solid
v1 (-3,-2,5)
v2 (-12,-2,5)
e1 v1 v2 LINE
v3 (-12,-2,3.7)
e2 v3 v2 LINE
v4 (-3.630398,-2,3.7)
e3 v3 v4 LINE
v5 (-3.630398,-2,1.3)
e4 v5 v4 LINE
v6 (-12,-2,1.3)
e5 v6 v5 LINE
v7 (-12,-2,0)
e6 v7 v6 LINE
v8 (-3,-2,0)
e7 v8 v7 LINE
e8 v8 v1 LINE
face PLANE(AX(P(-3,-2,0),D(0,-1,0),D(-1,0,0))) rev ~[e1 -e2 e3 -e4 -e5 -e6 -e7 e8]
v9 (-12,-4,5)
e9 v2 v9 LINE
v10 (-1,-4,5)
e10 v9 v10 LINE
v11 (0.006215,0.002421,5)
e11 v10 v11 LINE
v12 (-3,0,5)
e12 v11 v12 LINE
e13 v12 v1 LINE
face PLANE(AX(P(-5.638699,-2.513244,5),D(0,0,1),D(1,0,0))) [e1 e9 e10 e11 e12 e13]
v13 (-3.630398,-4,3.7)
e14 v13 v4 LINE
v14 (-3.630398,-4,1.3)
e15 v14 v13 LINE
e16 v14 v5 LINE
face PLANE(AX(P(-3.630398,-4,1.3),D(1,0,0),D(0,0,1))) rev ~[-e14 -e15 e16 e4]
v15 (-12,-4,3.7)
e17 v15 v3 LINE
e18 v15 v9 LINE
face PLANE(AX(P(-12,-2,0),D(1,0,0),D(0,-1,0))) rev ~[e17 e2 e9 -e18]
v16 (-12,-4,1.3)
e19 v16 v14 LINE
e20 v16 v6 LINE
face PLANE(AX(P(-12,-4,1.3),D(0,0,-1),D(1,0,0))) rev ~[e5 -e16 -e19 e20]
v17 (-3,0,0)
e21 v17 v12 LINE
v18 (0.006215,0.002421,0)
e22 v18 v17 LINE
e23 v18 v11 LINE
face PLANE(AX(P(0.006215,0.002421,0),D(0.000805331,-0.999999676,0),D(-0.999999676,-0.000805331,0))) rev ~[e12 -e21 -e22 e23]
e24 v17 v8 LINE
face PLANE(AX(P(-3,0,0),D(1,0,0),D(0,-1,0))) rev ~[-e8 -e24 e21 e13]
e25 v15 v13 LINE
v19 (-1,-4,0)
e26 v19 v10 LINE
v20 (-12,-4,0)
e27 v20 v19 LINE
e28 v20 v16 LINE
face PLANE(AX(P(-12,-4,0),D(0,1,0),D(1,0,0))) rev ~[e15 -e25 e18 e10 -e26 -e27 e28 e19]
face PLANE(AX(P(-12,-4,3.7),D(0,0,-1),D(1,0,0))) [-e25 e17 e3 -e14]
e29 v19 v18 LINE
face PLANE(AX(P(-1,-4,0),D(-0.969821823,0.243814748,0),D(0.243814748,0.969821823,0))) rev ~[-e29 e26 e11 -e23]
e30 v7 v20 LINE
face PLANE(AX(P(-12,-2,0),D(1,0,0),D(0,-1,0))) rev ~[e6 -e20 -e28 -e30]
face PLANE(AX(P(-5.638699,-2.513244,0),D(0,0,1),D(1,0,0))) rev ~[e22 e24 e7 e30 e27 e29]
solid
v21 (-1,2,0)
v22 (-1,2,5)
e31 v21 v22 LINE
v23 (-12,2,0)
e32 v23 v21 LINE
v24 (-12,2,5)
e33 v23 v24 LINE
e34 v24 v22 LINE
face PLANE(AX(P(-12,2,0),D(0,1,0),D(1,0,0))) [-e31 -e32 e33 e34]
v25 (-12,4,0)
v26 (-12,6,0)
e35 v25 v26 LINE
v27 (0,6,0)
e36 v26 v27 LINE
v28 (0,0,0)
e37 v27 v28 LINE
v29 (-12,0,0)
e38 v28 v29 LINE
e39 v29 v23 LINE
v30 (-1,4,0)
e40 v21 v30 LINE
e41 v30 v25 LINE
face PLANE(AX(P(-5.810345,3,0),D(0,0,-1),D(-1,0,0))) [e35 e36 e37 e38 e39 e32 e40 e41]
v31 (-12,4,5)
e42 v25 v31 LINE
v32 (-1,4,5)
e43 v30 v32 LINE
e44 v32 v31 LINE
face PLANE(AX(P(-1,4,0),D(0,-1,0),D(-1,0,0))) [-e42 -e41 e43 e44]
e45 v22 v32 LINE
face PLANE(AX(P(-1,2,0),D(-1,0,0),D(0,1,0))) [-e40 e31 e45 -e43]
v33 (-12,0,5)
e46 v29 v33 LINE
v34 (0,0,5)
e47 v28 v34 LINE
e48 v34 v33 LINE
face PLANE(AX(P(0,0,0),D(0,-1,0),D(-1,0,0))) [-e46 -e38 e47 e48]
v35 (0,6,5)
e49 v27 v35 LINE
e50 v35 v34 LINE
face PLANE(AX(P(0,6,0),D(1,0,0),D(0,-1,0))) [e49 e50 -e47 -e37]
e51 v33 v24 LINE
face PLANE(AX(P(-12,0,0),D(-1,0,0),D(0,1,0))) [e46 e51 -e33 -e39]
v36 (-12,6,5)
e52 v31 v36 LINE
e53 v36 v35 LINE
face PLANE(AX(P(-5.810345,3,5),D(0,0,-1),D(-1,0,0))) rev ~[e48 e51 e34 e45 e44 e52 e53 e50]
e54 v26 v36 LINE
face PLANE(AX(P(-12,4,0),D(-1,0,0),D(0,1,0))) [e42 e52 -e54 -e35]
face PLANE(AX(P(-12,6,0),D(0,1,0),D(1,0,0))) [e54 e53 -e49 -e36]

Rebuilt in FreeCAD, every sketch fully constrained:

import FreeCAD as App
import Part
import Sketcher
Q = App.Units.Quantity


def add_polygon(sketch, points):
    """Adds a closed chain of lines whose ends are joined by coincident constraints."""
    first, n = sketch.GeometryCount, len(points)
    for a, b in zip(points, points[1:] + points[:1]):
        sketch.addGeometry(Part.LineSegment(App.Vector(*a, 0), App.Vector(*b, 0)), False)
    for i in range(n):
        sketch.addConstraint(Sketcher.Constraint("Coincident", first + i, 2, first + (i + 1) % n, 1))

doc = App.newDocument("Part")
body = doc.addObject("PartDesign::Body", "Body")

# Sketch on XY plane
sketch1 = doc.addObject("Sketcher::SketchObject", "Sketch")
body.addObject(sketch1)
sketch1.AttachmentSupport = (doc.XY_Plane, [""])
sketch1.MapMode = "FlatFace"
add_polygon(sketch1, [(0, 6), (-12, 6), (-12, 4), (-1, 4), (-1, 2), (-12, 2), (-12, 0), (0, 0)])  # lines 0-7
sketch1.addConstraint(Sketcher.Constraint("Horizontal", 0))
sketch1.addConstraint(Sketcher.Constraint("Vertical", 1))
sketch1.addConstraint(Sketcher.Constraint("Horizontal", 2))
sketch1.addConstraint(Sketcher.Constraint("Vertical", 3))
sketch1.addConstraint(Sketcher.Constraint("Horizontal", 4))
sketch1.addConstraint(Sketcher.Constraint("Vertical", 5))
sketch1.addConstraint(Sketcher.Constraint("Horizontal", 6))
sketch1.addConstraint(Sketcher.Constraint("Vertical", 7))
sketch1.addConstraint(Sketcher.Constraint("Coincident", 6, 2, -1, 1))
sketch1.addConstraint(Sketcher.Constraint("Vertical", 1, 2, 4, 2))
sketch1.addConstraint(Sketcher.Constraint("Equal", 1, 3))
sketch1.addConstraint(Sketcher.Constraint("Equal", 3, 5))
sketch1.addConstraint(Sketcher.Constraint("DistanceX", 0, 2, 0, 1, Q("12 mm")))
sketch1.addConstraint(Sketcher.Constraint("DistanceX", 2, 1, 2, 2, Q("11 mm")))
sketch1.addConstraint(Sketcher.Constraint("DistanceY", 1, 2, 1, 1, Q("2 mm")))
pad1 = doc.addObject("PartDesign::Pad", "Pad")
body.addObject(pad1)
pad1.Profile = sketch1
pad1.Length = 5
body2 = doc.addObject("PartDesign::Body", "Body001")

# Sketch on XZ plane
sketch2 = doc.addObject("Sketcher::SketchObject", "Sketch001")
body2.addObject(sketch2)
sketch2.AttachmentSupport = (doc.getObject("XZ_Plane001"), [""])
sketch2.MapMode = "FlatFace"
sketch2.AttachmentOffset = App.Placement(App.Vector(0, 0, 4), App.Rotation())
add_polygon(sketch2, [(-12, 3.7), (-12, 1.3), (-3.630398, 1.3), (-3.630398, 3.7)])  # lines 0-3
sketch2.addConstraint(Sketcher.Constraint("Vertical", 0))
sketch2.addConstraint(Sketcher.Constraint("Horizontal", 1))
sketch2.addConstraint(Sketcher.Constraint("Vertical", 2))
sketch2.addConstraint(Sketcher.Constraint("Horizontal", 3))
sketch2.addConstraint(Sketcher.Constraint("DistanceY", 0, 2, 0, 1, Q("2.4 mm")))
sketch2.addConstraint(Sketcher.Constraint("DistanceX", 0, 2, -1, 1, Q("12 mm")))
sketch2.addConstraint(Sketcher.Constraint("DistanceY", -1, 1, 0, 2, Q("1.3 mm")))
sketch2.addConstraint(Sketcher.Constraint("DistanceX", 1, 2, -1, 1, Q("3.630398 mm")))
pad2 = doc.addObject("PartDesign::Pad", "Pad001")
body2.addObject(pad2)
pad2.Profile = sketch2
pad2.Length = 3
pad2.Reversed = True
body3 = doc.addObject("PartDesign::Body", "Body002")

# Sketch on XY plane
sketch3 = doc.addObject("Sketcher::SketchObject", "Sketch002")
body3.addObject(sketch3)
sketch3.AttachmentSupport = (doc.getObject("XY_Plane002"), [""])
sketch3.MapMode = "FlatFace"
add_polygon(sketch3, [(-3, 0), (-3, -2), (-12, -2), (-12, -4), (-1, -4), (0.006215, 0.002421)])  # lines 0-5
sketch3.addConstraint(Sketcher.Constraint("Vertical", 0))
sketch3.addConstraint(Sketcher.Constraint("Horizontal", 1))
sketch3.addConstraint(Sketcher.Constraint("Vertical", 2))
sketch3.addConstraint(Sketcher.Constraint("Horizontal", 3))
sketch3.addConstraint(Sketcher.Constraint("PointOnObject", 5, 2, -1))
sketch3.addConstraint(Sketcher.Constraint("Equal", 0, 2))
sketch3.addConstraint(Sketcher.Constraint("DistanceX", 1, 2, 1, 1, Q("9 mm")))
sketch3.addConstraint(Sketcher.Constraint("DistanceX", 3, 1, 3, 2, Q("11 mm")))
sketch3.addConstraint(Sketcher.Constraint("DistanceY", 0, 2, 0, 1, Q("2 mm")))
sketch3.addConstraint(Sketcher.Constraint("DistanceX", 0, 2, -1, 1, Q("3 mm")))
sketch3.addConstraint(Sketcher.Constraint("DistanceY", -1, 1, 4, 2, Q("0.002421 mm")))
sketch3.addConstraint(Sketcher.Constraint("Distance", 4, Q("4.126965 mm")))
pad3 = doc.addObject("PartDesign::Pad", "Pad002")
body3.addObject(pad3)
pad3.Profile = sketch3
pad3.Length = 5
doc.recompute()

boolean = doc.addObject("PartDesign::Boolean", "Boolean")
body3.addObject(boolean)
boolean.Type = "Cut"
boolean.addObjects([body2])

doc.recompute()
